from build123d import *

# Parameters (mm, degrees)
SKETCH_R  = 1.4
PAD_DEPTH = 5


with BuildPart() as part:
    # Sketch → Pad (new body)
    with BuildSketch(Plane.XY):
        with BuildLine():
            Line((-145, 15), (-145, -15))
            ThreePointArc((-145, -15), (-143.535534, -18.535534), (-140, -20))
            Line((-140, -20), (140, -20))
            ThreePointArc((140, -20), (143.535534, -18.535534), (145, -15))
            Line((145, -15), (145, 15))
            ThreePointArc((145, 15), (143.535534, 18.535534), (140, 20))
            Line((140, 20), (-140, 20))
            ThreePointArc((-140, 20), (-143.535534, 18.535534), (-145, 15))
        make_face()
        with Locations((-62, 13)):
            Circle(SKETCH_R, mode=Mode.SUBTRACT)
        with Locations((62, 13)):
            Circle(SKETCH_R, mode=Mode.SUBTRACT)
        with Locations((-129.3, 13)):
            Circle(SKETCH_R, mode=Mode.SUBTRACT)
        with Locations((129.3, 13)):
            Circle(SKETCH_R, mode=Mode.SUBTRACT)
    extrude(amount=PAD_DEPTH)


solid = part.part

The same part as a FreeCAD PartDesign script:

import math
import FreeCAD as App
import Part
import Sketcher

V = App.Vector

doc = App.newDocument("Part")
body = doc.addObject("PartDesign::Body", "Body")

sketch1 = body.newObject("Sketcher::SketchObject", "Sketch")
sketch1.AttachmentSupport = (doc.getObject("XY_Plane"), [""])
sketch1.MapMode = "FlatFace"
sketch1.addGeometry([
    Part.LineSegment(V(-145, 15, 0), V(-145, -15, 0)),
    Part.ArcOfCircle(Part.Circle(V(-140, -15, 0), V(0, 0, 1), 5), math.radians(180), math.radians(270)),
    Part.LineSegment(V(-140, -20, 0), V(140, -20, 0)),
    Part.ArcOfCircle(Part.Circle(V(140, -15, 0), V(0, 0, 1), 5), math.radians(-90), math.radians(0)),
    Part.LineSegment(V(145, -15, 0), V(145, 15, 0)),
    Part.ArcOfCircle(Part.Circle(V(140, 15, 0), V(0, 0, 1), 5), math.radians(0), math.radians(90)),
    Part.LineSegment(V(140, 20, 0), V(-140, 20, 0)),
    Part.ArcOfCircle(Part.Circle(V(-140, 15, 0), V(0, 0, 1), 5), math.radians(90), math.radians(180)),
    Part.Circle(V(-129.3, 13, 0), V(0, 0, 1), 1.4),
    Part.Circle(V(-62, 13, 0), V(0, 0, 1), 1.4),
    Part.Circle(V(62, 13, 0), V(0, 0, 1), 1.4),
    Part.Circle(V(129.3, 13, 0), V(0, 0, 1), 1.4),
], False)
sketch1.addConstraint([
    Sketcher.Constraint("Tangent", 0, 2, 1, 1),
    Sketcher.Constraint("Tangent", 1, 2, 2, 1),
    Sketcher.Constraint("Tangent", 2, 2, 3, 1),
    Sketcher.Constraint("Tangent", 3, 2, 4, 1),
    Sketcher.Constraint("Tangent", 4, 2, 5, 1),
    Sketcher.Constraint("Tangent", 5, 2, 6, 1),
    Sketcher.Constraint("Tangent", 6, 2, 7, 1),
    Sketcher.Constraint("Tangent", 7, 2, 0, 1),
    Sketcher.Constraint("Vertical", 0),
    Sketcher.Constraint("Horizontal", 2),
    Sketcher.Constraint("Vertical", 4),
    Sketcher.Constraint("Horizontal", 6),
    Sketcher.Constraint("Equal", 1, 3),
    Sketcher.Constraint("Equal", 3, 5),
    Sketcher.Constraint("Equal", 5, 7),
    Sketcher.Constraint("Equal", 8, 9),
    Sketcher.Constraint("Equal", 9, 10),
    Sketcher.Constraint("Equal", 10, 11),
    Sketcher.Constraint("Symmetric", 1, 3, 5, 3, -1, 1),
    Sketcher.Constraint("Symmetric", 9, 3, 10, 3, -2),
    Sketcher.Constraint("Symmetric", 8, 3, 11, 3, -2),
    Sketcher.Constraint("Horizontal", 8, 3, 9, 3),
    Sketcher.Constraint("Radius", 1, 5.0),
    Sketcher.Constraint("Diameter", 8, 2.8),
    Sketcher.Constraint("DistanceX", 2, 1, 2, 2, 280.0),
    Sketcher.Constraint("DistanceY", 0, 2, 0, 1, 30.0),
    Sketcher.Constraint("DistanceY", -1, 1, 8, 3, 13.0),
    Sketcher.Constraint("DistanceX", 9, 3, -1, 1, 62.0),
    Sketcher.Constraint("DistanceX", 8, 3, -1, 1, 129.3),
])
pad1 = body.newObject("PartDesign::Pad", "Pad")
pad1.Profile = sketch1
pad1.Length = 5

doc.recompute()
